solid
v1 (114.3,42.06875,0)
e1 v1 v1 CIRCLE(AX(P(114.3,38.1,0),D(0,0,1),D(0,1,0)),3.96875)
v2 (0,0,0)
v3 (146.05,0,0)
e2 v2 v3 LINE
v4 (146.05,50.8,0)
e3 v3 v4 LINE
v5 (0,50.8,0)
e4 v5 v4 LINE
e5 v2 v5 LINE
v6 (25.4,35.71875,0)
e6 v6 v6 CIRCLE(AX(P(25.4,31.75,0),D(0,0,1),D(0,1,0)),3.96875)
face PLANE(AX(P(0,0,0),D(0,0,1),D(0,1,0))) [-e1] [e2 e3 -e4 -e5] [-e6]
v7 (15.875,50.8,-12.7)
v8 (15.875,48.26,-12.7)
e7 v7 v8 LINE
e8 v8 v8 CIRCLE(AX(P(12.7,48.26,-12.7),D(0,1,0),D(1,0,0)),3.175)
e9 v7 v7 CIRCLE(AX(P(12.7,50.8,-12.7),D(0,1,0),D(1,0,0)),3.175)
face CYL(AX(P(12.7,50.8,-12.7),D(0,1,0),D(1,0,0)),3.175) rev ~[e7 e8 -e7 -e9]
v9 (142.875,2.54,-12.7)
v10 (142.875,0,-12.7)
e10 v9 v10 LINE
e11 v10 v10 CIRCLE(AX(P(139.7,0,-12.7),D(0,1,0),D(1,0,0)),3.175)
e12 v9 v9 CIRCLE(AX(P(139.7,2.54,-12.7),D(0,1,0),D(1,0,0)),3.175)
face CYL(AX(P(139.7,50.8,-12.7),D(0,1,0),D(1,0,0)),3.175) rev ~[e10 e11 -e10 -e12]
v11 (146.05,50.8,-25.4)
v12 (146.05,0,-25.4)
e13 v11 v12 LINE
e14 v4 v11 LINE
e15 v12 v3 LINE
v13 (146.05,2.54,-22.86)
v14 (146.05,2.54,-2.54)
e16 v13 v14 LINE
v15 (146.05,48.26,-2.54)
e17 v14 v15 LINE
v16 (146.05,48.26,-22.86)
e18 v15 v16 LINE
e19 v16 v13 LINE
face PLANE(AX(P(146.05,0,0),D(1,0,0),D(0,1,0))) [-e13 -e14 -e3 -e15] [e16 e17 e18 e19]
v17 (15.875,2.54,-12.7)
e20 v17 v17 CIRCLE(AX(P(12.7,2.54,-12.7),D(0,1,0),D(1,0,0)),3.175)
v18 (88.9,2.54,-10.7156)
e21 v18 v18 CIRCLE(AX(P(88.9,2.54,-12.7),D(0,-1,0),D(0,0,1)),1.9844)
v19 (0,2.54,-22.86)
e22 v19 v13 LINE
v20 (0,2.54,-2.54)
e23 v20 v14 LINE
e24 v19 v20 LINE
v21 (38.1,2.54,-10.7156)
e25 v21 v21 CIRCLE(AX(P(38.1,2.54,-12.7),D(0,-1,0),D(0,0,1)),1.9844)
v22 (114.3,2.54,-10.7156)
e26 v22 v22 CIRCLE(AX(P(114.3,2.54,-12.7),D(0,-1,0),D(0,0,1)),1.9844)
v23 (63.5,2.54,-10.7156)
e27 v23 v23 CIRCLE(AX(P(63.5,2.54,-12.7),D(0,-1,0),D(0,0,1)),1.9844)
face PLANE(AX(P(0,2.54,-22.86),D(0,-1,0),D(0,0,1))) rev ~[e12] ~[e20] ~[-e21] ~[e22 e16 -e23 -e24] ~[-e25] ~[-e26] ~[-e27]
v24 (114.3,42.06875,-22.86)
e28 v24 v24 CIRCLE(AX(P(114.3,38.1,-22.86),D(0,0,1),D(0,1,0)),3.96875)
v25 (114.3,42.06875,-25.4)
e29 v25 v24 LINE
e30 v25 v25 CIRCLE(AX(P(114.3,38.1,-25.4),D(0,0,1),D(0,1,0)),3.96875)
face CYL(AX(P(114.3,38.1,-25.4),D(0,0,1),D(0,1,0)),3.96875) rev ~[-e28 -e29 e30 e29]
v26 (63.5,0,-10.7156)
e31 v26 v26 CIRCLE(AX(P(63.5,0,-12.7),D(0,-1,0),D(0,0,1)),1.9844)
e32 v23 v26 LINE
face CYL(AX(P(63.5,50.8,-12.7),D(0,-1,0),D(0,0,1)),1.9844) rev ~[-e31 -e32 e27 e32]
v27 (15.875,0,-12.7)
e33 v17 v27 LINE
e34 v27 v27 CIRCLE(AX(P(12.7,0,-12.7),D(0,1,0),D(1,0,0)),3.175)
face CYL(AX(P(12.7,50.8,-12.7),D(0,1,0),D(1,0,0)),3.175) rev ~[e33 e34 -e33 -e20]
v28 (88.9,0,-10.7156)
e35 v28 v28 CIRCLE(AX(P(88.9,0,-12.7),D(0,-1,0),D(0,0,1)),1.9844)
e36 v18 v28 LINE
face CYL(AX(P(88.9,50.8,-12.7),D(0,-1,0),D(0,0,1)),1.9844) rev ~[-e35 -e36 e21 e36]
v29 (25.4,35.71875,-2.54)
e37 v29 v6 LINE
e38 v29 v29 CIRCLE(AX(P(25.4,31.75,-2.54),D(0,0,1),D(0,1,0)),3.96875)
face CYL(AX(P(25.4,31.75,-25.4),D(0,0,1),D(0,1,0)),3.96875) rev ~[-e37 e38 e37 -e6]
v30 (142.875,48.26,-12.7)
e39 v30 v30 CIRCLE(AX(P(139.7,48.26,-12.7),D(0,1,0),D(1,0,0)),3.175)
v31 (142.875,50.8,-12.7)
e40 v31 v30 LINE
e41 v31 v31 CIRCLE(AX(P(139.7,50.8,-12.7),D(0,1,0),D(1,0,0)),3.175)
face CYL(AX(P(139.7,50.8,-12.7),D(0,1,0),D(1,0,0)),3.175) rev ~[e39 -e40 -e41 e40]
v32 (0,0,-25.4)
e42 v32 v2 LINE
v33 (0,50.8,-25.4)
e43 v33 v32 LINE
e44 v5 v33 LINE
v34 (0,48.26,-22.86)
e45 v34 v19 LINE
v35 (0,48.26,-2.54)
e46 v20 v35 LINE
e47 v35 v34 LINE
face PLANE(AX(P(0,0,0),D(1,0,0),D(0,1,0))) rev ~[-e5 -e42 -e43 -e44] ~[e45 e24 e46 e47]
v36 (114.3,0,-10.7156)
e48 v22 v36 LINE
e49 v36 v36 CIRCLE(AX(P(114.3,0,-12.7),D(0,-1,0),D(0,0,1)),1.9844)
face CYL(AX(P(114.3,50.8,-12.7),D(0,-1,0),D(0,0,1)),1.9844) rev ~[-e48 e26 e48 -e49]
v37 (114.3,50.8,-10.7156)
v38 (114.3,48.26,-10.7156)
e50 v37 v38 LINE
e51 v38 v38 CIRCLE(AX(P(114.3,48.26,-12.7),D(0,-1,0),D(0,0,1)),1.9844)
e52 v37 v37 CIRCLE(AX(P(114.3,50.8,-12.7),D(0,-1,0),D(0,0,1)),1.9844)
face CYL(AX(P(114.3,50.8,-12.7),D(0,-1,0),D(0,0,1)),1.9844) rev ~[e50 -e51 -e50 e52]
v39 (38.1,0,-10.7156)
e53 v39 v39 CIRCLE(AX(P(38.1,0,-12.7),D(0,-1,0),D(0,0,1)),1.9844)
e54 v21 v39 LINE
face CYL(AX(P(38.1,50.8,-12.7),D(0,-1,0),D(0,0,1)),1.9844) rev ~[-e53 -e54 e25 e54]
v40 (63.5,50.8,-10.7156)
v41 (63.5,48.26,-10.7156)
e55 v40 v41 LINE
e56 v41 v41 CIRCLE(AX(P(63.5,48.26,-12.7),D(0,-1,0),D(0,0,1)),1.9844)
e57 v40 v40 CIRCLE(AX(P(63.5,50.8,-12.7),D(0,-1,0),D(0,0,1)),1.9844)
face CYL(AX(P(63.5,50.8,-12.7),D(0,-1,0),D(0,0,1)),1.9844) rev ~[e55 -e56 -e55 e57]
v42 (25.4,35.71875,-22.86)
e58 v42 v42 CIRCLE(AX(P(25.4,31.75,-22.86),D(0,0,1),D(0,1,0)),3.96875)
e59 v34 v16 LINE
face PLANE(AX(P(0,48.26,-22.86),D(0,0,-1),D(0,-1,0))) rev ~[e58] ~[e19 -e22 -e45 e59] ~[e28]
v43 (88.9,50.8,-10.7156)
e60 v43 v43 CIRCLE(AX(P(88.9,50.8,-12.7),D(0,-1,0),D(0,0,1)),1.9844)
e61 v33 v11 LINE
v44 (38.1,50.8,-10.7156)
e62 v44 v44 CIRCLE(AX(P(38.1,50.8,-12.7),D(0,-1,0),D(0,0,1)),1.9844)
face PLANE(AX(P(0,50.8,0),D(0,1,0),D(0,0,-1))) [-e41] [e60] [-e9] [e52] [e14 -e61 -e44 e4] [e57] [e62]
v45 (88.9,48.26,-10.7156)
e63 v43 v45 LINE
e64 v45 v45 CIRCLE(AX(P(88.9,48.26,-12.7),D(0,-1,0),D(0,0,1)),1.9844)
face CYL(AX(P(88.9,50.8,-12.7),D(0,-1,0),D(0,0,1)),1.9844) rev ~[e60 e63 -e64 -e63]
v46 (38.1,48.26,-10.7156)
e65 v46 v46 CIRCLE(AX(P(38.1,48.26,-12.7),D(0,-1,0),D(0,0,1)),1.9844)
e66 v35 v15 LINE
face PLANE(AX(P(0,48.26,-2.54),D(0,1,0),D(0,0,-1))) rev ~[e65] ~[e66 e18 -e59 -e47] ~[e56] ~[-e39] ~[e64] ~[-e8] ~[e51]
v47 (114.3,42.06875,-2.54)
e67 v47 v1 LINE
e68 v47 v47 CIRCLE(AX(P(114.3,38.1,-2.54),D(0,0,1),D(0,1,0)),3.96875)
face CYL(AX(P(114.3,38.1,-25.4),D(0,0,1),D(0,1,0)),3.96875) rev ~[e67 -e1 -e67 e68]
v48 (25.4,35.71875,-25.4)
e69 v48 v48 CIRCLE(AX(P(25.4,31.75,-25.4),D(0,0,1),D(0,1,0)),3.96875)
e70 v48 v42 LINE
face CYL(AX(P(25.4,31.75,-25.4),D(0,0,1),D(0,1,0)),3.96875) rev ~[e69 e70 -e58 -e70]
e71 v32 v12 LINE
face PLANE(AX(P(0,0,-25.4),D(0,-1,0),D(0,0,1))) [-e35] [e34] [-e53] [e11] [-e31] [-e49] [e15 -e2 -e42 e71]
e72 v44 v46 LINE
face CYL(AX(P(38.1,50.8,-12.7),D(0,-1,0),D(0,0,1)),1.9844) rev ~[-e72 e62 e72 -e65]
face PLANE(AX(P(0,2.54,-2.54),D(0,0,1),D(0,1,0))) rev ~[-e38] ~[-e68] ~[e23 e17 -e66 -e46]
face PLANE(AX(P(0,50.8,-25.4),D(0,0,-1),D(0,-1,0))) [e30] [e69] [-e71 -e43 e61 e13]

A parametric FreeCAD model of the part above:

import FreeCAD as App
import Part
import Sketcher
Q = App.Units.Quantity

doc = App.newDocument("Part")
params = doc.addObject("Spreadsheet::Sheet", "Params")
for row, (alias, value) in enumerate([
    ("sketch1_width", "2 in"),
    ("sketch1_height", "1 in"),
    ("sketch1_width2", "1.8 in"),
    ("sketch1_height2", "0.8 in"),
    ("pad1_length", "5.75 in"),
    ("sketch2_diameter", "0.156252 in"),
    ("hole_diameter", "0.156252 in"),
    ("linearpattern_pitch", "1 in"),
    ("sketch3_diameter", "0.3125 in"),
    ("hole2_diameter", "0.3125 in"),
    ("sketch4_diameter", "0.25 in"),
    ("sketch4_diameter2", "0.156252 in"),
    ("pocket1_length", "2 in"),
    ("sketch5_diameter", "0.3125 in"),
    ("hole3_diameter", "0.3125 in"),
], start=1):
    params.set(f"A{row}", alias)
    params.set(f"B{row}", "=" + value)
    params.setAlias(f"B{row}", alias)

body = doc.addObject("PartDesign::Body", "Body")

# Sketch on YZ plane
sketch1 = body.newObject("Sketcher::SketchObject", "Sketch")
sketch1.AttachmentSupport = (doc.getObject("YZ_Plane"), [""])
sketch1.MapMode = "FlatFace"
sketch1.addGeometry(Part.LineSegment(App.Vector(50.8, 0, 0), App.Vector(0, 0, 0)), False)
sketch1.addGeometry(Part.LineSegment(App.Vector(0, 0, 0), App.Vector(0, -25.4, 0)), False)
sketch1.addGeometry(Part.LineSegment(App.Vector(0, -25.4, 0), App.Vector(50.8, -25.4, 0)), False)
sketch1.addGeometry(Part.LineSegment(App.Vector(50.8, -25.4, 0), App.Vector(50.8, 0, 0)), False)
sketch1.addGeometry(Part.LineSegment(App.Vector(2.54, -22.86, 0), App.Vector(2.54, -2.54, 0)), False)
sketch1.addGeometry(Part.LineSegment(App.Vector(2.54, -2.54, 0), App.Vector(48.26, -2.54, 0)), False)
sketch1.addGeometry(Part.LineSegment(App.Vector(48.26, -2.54, 0), App.Vector(48.26, -22.86, 0)), False)
sketch1.addGeometry(Part.LineSegment(App.Vector(48.26, -22.86, 0), App.Vector(2.54, -22.86, 0)), False)
sketch1.addConstraint(Sketcher.Constraint("Coincident", 0, 2, 1, 1))
sketch1.addConstraint(Sketcher.Constraint("Coincident", 1, 2, 2, 1))
sketch1.addConstraint(Sketcher.Constraint("Coincident", 2, 2, 3, 1))
sketch1.addConstraint(Sketcher.Constraint("Coincident", 3, 2, 0, 1))
sketch1.addConstraint(Sketcher.Constraint("Coincident", 4, 2, 5, 1))
sketch1.addConstraint(Sketcher.Constraint("Coincident", 5, 2, 6, 1))
sketch1.addConstraint(Sketcher.Constraint("Coincident", 6, 2, 7, 1))
sketch1.addConstraint(Sketcher.Constraint("Coincident", 7, 2, 4, 1))
sketch1.addConstraint(Sketcher.Constraint("Horizontal", 0))
sketch1.addConstraint(Sketcher.Constraint("Vertical", 1))
sketch1.addConstraint(Sketcher.Constraint("Horizontal", 2))
sketch1.addConstraint(Sketcher.Constraint("Vertical", 3))
sketch1.addConstraint(Sketcher.Constraint("Vertical", 4))
sketch1.addConstraint(Sketcher.Constraint("Horizontal", 5))
sketch1.addConstraint(Sketcher.Constraint("Vertical", 6))
sketch1.addConstraint(Sketcher.Constraint("Horizontal", 7))
sketch1.addConstraint(Sketcher.Constraint("Coincident", 0, 2, -1, 1))
sketch1.addConstraint(Sketcher.Constraint("DistanceX", 0, 2, 0, 1, Q("2 in")))
sketch1.addConstraint(Sketcher.Constraint("DistanceY", 1, 2, 1, 1, Q("1 in")))
sketch1.addConstraint(Sketcher.Constraint("DistanceX", 5, 1, 5, 2, Q("1.8 in")))
sketch1.addConstraint(Sketcher.Constraint("DistanceY", 4, 1, 4, 2, Q("0.8 in")))
sketch1.addConstraint(Sketcher.Constraint("DistanceX", -1, 1, 4, 2, Q("0.1 in")))
sketch1.addConstraint(Sketcher.Constraint("DistanceY", 4, 2, -1, 1, Q("0.1 in")))
sketch1.setExpression("Constraints[17]", "Params.sketch1_width")
sketch1.setExpression("Constraints[18]", "Params.sketch1_height")
sketch1.setExpression("Constraints[19]", "Params.sketch1_width2")
sketch1.setExpression("Constraints[20]", "Params.sketch1_height2")
pad1 = body.newObject("PartDesign::Pad", "Pad")
pad1.Profile = sketch1
pad1.setExpression("Length", "Params.pad1_length")

# Sketch on XZ plane
sketch2 = body.newObject("Sketcher::SketchObject", "Sketch001")
sketch2.AttachmentSupport = (doc.getObject("XZ_Plane"), [""])
sketch2.MapMode = "FlatFace"
sketch2.AttachmentOffset = App.Placement(App.Vector(0, 0, -2 * 25.4), App.Rotation())
sketch2.addGeometry(Part.Circle(App.Vector(12.7, -12.7, 0), App.Vector(0, 0, 1), 1.9844), False)
sketch2.addConstraint(Sketcher.Constraint("Diameter", 0, Q("0.156252 in")))
sketch2.addConstraint(Sketcher.Constraint("DistanceX", -1, 1, 0, 3, Q("0.5 in")))
sketch2.addConstraint(Sketcher.Constraint("DistanceY", 0, 3, -1, 1, Q("0.5 in")))
sketch2.setExpression("Constraints[0]", "Params.sketch2_diameter")
doc.recompute()
hole = body.newObject("PartDesign::Hole", "Hole")
hole.Profile = sketch2
hole.ThreadType = "None"
hole.setExpression("Diameter", "Params.hole_diameter")
hole.DepthType = "ThroughAll"
hole.Reversed = True
doc.recompute()

linearpattern = body.newObject("PartDesign::LinearPattern", "LinearPattern")
linearpattern.Originals = [hole]
linearpattern.Direction = (doc.getObject("X_Axis"), [""])
linearpattern.Mode = "offset"
linearpattern.setExpression("Offset", "Params.linearpattern_pitch")
linearpattern.Occurrences = 6
body.Tip = linearpattern

# Sketch on XY plane
sketch3 = body.newObject("Sketcher::SketchObject", "Sketch002")
sketch3.AttachmentSupport = (doc.getObject("XY_Plane"), [""])
sketch3.MapMode = "FlatFace"
sketch3.AttachmentOffset = App.Placement(App.Vector(0, 0, -1 * 25.4), App.Rotation())
sketch3.addGeometry(Part.Circle(App.Vector(114.3, 38.1, 0), App.Vector(0, 0, 1), 3.96875), False)
sketch3.addConstraint(Sketcher.Constraint("Diameter", 0, Q("0.3125 in")))
sketch3.addConstraint(Sketcher.Constraint("DistanceX", -1, 1, 0, 3, Q("4.5 in")))
sketch3.addConstraint(Sketcher.Constraint("DistanceY", -1, 1, 0, 3, Q("1.5 in")))
sketch3.setExpression("Constraints[0]", "Params.sketch3_diameter")
doc.recompute()
hole2 = body.newObject("PartDesign::Hole", "Hole001")
hole2.Profile = sketch3
hole2.ThreadType = "None"
hole2.setExpression("Diameter", "Params.hole2_diameter")
hole2.DepthType = "ThroughAll"
hole2.Reversed = True

# Sketch on XZ plane
sketch4 = body.newObject("Sketcher::SketchObject", "Sketch003")
sketch4.AttachmentSupport = (doc.getObject("XZ_Plane"), [""])
sketch4.MapMode = "FlatFace"
sketch4.AttachmentOffset = App.Placement(App.Vector(0, 0, -2 * 25.4), App.Rotation())
sketch4.addGeometry(Part.Circle(App.Vector(12.7, -12.7, 0), App.Vector(0, 0, 1), 3.175), False)
sketch4.addGeometry(Part.Circle(App.Vector(12.7, -12.7, 0), App.Vector(0, 0, 1), 1.9844), False)
sketch4.addGeometry(Part.Circle(App.Vector(139.7, -12.7, 0), App.Vector(0, 0, 1), 3.175), False)
sketch4.addGeometry(Part.Circle(App.Vector(139.7, -12.7, 0), App.Vector(0, 0, 1), 1.9844), False)
sketch4.addConstraint(Sketcher.Constraint("Coincident", 1, 3, 0, 3))
sketch4.addConstraint(Sketcher.Constraint("Coincident", 3, 3, 2, 3))
sketch4.addConstraint(Sketcher.Constraint("Equal", 0, 2))
sketch4.addConstraint(Sketcher.Constraint("Equal", 1, 3))
sketch4.addConstraint(Sketcher.Constraint("Horizontal", 1, 3, 2, 3))
sketch4.addConstraint(Sketcher.Constraint("Diameter", 0, Q("0.25 in")))
sketch4.addConstraint(Sketcher.Constraint("Diameter", 1, Q("0.156252 in")))
sketch4.addConstraint(Sketcher.Constraint("DistanceX", 0, 3, 2, 3, Q("5 in")))
sketch4.addConstraint(Sketcher.Constraint("DistanceX", -1, 1, 0, 3, Q("0.5 in")))
sketch4.addConstraint(Sketcher.Constraint("DistanceY", 0, 3, -1, 1, Q("0.5 in")))
sketch4.setExpression("Constraints[5]", "Params.sketch4_diameter")
sketch4.setExpression("Constraints[6]", "Params.sketch4_diameter2")
pocket1 = body.newObject("PartDesign::Pocket", "Pocket")
pocket1.Profile = sketch4
pocket1.setExpression("Length", "Params.pocket1_length")
pocket1.Reversed = True

# Sketch on XY plane
sketch5 = body.newObject("Sketcher::SketchObject", "Sketch004")
sketch5.AttachmentSupport = (doc.getObject("XY_Plane"), [""])
sketch5.MapMode = "FlatFace"
sketch5.AttachmentOffset = App.Placement(App.Vector(0, 0, -1 * 25.4), App.Rotation())
sketch5.addGeometry(Part.Circle(App.Vector(25.4, 31.75, 0), App.Vector(0, 0, 1), 3.96875), False)
sketch5.addConstraint(Sketcher.Constraint("Diameter", 0, Q("0.3125 in")))
sketch5.addConstraint(Sketcher.Constraint("DistanceX", -1, 1, 0, 3, Q("1 in")))
sketch5.addConstraint(Sketcher.Constraint("DistanceY", -1, 1, 0, 3, Q("1.25 in")))
sketch5.setExpression("Constraints[0]", "Params.sketch5_diameter")
doc.recompute()
hole3 = body.newObject("PartDesign::Hole", "Hole002")
hole3.Profile = sketch5
hole3.ThreadType = "None"
hole3.setExpression("Diameter", "Params.hole3_diameter")
hole3.DepthType = "ThroughAll"
hole3.Reversed = True

doc.recompute()
